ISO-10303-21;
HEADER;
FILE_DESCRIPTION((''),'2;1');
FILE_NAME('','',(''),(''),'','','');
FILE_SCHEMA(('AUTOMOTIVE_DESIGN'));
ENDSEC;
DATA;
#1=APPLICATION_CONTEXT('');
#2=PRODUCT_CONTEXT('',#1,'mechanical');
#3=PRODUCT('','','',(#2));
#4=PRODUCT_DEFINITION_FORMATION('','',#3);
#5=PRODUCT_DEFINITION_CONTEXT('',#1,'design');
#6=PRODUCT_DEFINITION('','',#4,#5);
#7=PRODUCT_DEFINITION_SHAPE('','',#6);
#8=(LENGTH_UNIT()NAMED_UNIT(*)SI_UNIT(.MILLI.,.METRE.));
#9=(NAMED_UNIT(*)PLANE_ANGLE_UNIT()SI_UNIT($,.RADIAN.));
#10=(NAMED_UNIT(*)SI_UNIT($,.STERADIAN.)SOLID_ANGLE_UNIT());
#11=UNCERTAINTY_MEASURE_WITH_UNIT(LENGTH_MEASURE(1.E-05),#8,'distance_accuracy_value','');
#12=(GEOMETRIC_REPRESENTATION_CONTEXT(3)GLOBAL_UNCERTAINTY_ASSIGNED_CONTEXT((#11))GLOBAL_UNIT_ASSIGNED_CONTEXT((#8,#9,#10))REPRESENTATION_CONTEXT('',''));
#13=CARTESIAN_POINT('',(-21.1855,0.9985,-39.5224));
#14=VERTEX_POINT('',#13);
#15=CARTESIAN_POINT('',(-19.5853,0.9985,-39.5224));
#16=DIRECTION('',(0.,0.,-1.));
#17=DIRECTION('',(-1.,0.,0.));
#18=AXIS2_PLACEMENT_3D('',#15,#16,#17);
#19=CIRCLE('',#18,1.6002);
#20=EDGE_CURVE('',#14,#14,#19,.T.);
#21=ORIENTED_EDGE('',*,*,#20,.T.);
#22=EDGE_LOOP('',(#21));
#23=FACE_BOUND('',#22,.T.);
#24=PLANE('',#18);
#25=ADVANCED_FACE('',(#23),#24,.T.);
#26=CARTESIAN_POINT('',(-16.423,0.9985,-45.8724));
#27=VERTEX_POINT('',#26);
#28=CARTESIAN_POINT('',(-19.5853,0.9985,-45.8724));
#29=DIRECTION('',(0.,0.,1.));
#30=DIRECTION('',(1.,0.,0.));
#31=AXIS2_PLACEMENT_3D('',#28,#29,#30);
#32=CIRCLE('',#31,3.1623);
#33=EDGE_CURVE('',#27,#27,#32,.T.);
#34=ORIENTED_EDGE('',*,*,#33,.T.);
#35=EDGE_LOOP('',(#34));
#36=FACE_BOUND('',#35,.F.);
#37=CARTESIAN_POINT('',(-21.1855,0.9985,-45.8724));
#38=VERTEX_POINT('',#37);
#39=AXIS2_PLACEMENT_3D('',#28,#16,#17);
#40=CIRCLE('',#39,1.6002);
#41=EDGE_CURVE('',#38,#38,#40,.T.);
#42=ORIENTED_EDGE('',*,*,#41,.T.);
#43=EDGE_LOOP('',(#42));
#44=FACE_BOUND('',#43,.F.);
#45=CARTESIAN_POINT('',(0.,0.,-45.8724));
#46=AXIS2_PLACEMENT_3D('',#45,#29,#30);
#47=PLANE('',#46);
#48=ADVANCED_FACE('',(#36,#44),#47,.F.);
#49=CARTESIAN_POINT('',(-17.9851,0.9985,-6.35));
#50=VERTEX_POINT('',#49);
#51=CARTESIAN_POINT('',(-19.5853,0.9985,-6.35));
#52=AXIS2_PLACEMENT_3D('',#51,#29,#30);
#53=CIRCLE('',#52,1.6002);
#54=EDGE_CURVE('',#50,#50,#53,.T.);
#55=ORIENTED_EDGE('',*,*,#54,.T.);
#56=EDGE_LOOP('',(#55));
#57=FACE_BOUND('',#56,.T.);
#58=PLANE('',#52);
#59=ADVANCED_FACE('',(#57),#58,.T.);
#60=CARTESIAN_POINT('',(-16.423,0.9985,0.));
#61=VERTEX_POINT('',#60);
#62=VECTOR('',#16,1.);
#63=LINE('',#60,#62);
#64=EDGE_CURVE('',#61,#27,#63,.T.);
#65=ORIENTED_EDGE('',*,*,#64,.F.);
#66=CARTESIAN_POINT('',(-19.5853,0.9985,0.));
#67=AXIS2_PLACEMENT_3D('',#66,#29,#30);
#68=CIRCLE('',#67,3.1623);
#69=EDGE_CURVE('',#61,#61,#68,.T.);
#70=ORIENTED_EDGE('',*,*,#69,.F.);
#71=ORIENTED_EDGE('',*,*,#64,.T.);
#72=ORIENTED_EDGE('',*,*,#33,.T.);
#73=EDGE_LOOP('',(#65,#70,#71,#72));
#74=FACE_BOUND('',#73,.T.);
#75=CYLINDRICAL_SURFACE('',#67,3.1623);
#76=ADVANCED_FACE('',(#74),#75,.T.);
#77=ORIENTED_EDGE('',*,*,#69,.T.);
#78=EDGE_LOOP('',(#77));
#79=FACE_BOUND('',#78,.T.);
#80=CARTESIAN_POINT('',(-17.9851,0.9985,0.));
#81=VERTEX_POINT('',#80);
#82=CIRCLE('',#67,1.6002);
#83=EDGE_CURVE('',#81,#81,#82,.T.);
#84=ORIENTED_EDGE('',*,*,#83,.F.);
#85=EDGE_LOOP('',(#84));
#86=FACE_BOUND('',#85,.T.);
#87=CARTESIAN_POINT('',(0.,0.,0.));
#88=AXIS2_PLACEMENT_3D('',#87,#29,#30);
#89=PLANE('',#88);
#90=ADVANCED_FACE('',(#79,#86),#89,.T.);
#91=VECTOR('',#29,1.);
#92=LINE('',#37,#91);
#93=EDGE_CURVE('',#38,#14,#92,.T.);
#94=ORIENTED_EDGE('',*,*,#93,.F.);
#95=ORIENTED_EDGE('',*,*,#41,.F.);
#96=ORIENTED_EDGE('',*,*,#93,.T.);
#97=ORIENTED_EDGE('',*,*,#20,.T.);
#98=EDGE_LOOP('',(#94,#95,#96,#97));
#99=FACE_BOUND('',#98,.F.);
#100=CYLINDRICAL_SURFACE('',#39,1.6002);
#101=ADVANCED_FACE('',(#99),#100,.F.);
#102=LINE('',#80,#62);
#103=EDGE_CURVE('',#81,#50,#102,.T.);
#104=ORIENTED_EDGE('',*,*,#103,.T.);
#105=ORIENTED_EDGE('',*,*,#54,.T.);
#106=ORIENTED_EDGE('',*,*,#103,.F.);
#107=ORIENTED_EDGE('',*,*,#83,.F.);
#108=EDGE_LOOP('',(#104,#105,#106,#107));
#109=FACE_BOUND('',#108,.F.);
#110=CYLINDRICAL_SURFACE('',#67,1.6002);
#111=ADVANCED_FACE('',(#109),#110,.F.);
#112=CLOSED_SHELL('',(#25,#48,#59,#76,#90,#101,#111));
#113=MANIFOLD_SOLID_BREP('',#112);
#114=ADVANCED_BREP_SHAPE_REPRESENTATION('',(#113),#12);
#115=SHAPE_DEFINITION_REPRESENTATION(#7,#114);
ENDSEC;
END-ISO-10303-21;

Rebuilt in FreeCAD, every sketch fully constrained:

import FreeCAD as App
import Part
import Sketcher
Q = App.Units.Quantity

doc = App.newDocument("Part")
body = doc.addObject("PartDesign::Body", "Body")

# Sketch on XY plane
sketch1 = body.newObject("Sketcher::SketchObject", "Sketch")
sketch1.AttachmentSupport = (doc.getObject("XY_Plane"), [""])
sketch1.MapMode = "FlatFace"
sketch1.addGeometry(Part.Circle(App.Vector(-19.5853, 0.9985, 0), App.Vector(0, 0, 1), 3.1623), False)
sketch1.addConstraint([
    Sketcher.Constraint("Diameter", 0, Q("0.249 in")),
    Sketcher.Constraint("DistanceY", -1, 1, 0, 3, Q("0.0393 in")),
    Sketcher.Constraint("DistanceX", 0, 3, -1, 1, Q("19.5853 mm")),
])
pad1 = body.newObject("PartDesign::Pad", "Pad")
pad1.Profile = sketch1
pad1.Length = Q("1.806 in")
pad1.Reversed = True

# Sketch on XY plane
sketch2 = body.newObject("Sketcher::SketchObject", "Sketch001")
sketch2.AttachmentSupport = (doc.getObject("XY_Plane"), [""])
sketch2.MapMode = "FlatFace"
sketch2.addGeometry(Part.Circle(App.Vector(-19.5853, 0.9985, 0), App.Vector(0, 0, 1), 1.6002), False)
sketch2.addConstraint([
    Sketcher.Constraint("Diameter", 0, Q("0.126 in")),
    Sketcher.Constraint("DistanceY", -1, 1, 0, 3, Q("0.0393 in")),
    Sketcher.Constraint("DistanceX", 0, 3, -1, 1, Q("19.5853 mm")),
])
pocket1 = body.newObject("PartDesign::Pocket", "Pocket")
pocket1.Profile = sketch2
pocket1.Length = Q("0.25 in")

# Sketch on XY plane
sketch3 = body.newObject("Sketcher::SketchObject", "Sketch002")
sketch3.AttachmentSupport = (doc.getObject("XY_Plane"), [""])
sketch3.MapMode = "FlatFace"
sketch3.AttachmentOffset = App.Placement(App.Vector(0, 0, -1.806 * 25.4), App.Rotation())
sketch3.addGeometry(Part.Circle(App.Vector(-19.5853, 0.9985, 0), App.Vector(0, 0, 1), 1.6002), False)
sketch3.addConstraint([
    Sketcher.Constraint("Diameter", 0, Q("0.126 in")),
    Sketcher.Constraint("DistanceY", -1, 1, 0, 3, Q("0.0393 in")),
    Sketcher.Constraint("DistanceX", 0, 3, -1, 1, Q("19.5853 mm")),
])
pocket2 = body.newObject("PartDesign::Pocket", "Pocket001")
pocket2.Profile = sketch3
pocket2.Length = Q("0.25 in")
pocket2.Reversed = True

doc.recompute()
